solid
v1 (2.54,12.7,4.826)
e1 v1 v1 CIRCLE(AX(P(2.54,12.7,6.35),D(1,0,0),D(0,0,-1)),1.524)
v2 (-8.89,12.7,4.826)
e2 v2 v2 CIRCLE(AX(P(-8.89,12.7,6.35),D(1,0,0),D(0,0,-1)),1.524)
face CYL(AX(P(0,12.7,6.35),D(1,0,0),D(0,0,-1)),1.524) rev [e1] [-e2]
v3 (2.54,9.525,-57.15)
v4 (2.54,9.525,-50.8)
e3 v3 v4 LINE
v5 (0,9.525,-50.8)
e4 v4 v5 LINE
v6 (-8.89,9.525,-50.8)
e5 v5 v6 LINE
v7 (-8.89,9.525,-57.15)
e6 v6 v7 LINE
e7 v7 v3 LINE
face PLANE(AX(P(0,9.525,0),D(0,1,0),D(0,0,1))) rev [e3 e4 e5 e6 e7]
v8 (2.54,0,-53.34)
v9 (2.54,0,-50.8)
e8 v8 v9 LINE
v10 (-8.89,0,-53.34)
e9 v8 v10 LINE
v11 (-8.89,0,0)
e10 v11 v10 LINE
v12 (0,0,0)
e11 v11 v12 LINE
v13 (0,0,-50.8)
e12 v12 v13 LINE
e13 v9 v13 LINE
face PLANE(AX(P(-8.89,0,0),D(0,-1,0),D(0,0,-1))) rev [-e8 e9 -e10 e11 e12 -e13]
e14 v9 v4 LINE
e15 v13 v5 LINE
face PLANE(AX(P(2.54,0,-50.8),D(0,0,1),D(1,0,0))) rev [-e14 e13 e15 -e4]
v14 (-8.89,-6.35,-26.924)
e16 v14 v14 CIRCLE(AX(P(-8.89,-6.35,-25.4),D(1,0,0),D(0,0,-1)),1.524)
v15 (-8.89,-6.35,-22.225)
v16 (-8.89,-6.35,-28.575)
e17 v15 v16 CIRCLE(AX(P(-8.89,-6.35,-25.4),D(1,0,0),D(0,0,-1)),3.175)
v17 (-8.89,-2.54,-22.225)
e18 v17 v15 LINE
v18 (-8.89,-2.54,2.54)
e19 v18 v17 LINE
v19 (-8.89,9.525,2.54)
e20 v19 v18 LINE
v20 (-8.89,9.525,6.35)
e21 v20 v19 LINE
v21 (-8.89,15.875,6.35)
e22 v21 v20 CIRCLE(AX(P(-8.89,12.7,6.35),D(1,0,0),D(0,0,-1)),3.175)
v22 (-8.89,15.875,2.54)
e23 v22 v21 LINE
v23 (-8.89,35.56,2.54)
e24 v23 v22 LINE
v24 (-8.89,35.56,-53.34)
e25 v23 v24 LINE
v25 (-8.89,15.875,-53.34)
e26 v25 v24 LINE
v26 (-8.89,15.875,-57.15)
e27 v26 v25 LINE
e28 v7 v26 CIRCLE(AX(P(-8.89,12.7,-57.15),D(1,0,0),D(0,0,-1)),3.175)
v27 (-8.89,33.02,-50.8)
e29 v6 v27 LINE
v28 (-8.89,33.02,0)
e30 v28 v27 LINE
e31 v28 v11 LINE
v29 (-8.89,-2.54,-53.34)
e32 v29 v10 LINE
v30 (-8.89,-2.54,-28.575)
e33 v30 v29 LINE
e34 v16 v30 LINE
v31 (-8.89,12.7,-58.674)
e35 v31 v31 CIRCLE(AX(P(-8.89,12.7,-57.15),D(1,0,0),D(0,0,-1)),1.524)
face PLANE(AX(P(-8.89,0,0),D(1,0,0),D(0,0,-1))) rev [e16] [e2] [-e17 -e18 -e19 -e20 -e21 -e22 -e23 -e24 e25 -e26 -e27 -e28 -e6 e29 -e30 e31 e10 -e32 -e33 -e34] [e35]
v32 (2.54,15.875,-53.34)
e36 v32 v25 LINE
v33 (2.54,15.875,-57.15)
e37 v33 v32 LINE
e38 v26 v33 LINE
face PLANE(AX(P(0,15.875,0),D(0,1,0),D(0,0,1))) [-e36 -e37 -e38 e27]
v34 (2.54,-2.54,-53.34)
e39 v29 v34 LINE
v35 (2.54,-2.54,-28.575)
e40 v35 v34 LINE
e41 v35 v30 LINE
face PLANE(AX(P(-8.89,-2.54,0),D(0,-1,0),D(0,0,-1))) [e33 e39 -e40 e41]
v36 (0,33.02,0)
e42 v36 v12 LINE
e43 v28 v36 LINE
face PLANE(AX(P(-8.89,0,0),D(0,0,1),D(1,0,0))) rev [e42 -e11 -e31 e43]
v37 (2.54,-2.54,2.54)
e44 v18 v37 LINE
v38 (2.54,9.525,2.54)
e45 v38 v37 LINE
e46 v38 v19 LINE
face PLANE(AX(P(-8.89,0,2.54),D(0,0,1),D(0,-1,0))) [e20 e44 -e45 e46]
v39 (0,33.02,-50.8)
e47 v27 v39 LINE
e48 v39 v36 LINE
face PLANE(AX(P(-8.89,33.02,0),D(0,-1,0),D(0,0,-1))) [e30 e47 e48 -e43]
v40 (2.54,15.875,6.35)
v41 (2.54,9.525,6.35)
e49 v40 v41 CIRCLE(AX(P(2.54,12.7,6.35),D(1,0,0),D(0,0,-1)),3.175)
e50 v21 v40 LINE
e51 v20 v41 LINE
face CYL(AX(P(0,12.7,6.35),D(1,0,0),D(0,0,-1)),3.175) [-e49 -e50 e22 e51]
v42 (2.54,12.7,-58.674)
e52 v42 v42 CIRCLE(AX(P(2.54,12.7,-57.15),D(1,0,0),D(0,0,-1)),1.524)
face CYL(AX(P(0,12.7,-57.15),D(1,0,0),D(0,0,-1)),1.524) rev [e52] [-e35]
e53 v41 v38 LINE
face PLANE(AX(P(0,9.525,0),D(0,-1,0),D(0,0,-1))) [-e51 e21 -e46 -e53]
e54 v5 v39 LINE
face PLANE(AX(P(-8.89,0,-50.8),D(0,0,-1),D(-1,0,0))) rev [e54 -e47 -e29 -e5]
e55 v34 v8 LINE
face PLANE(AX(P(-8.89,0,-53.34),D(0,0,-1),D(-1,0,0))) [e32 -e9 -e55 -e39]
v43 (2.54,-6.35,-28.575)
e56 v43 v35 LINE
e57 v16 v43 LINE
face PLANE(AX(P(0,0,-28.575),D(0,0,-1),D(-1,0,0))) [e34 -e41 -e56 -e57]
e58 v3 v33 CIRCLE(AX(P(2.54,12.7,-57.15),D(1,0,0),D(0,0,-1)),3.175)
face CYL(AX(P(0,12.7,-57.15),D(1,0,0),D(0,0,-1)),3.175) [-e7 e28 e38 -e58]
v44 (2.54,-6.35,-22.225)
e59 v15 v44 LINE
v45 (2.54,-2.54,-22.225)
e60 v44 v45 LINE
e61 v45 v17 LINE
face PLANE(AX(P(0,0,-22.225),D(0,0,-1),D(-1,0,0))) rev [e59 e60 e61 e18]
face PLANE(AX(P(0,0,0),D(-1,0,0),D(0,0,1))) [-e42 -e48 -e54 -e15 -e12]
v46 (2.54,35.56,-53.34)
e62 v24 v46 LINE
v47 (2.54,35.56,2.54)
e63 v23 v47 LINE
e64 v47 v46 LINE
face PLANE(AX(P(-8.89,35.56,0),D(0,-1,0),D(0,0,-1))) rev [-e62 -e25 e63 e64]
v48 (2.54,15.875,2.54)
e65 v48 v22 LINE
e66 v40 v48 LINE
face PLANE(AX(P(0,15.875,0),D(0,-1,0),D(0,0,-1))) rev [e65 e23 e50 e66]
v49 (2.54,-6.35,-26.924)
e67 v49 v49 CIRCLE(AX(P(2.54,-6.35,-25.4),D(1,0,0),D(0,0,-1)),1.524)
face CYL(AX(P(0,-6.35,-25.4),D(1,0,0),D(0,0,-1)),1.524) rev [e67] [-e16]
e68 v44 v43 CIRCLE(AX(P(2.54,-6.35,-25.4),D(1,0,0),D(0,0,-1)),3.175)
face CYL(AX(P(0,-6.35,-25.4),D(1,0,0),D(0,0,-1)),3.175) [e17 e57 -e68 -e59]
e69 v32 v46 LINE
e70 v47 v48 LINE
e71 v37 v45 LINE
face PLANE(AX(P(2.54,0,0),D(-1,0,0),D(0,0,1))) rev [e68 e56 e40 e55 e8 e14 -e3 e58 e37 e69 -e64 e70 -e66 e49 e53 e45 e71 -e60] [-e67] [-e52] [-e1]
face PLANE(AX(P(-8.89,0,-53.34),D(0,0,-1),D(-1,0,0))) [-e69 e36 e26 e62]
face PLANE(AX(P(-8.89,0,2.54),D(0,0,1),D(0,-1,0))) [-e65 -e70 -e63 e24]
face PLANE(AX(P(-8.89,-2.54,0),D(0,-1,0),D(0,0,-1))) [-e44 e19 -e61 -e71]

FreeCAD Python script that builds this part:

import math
import FreeCAD as App
import Part
import Sketcher
Q = App.Units.Quantity


def add_polygon(sketch, points):
    """Adds a closed chain of lines whose ends are joined by coincident constraints."""
    first, n = sketch.GeometryCount, len(points)
    for a, b in zip(points, points[1:] + points[:1]):
        sketch.addGeometry(Part.LineSegment(App.Vector(*a, 0), App.Vector(*b, 0)), False)
    for i in range(n):
        sketch.addConstraint(Sketcher.Constraint("Coincident", first + i, 2, first + (i + 1) % n, 1))

doc = App.newDocument("Part")
body = doc.addObject("PartDesign::Body", "Body")

sketch1 = body.newObject("Sketcher::SketchObject", "Sketch")
sketch1.AttachmentSupport = (doc.getObject("YZ_Plane"), [""])
sketch1.MapMode = "FlatFace"
add_polygon(sketch1, [(33, 0), (0, 0), (0, -51), (33, -51)])
sketch1.addConstraint([
    Sketcher.Constraint("Horizontal", 0),
    Sketcher.Constraint("Vertical", 1),
    Sketcher.Constraint("Horizontal", 2),
    Sketcher.Constraint("Vertical", 3),
    Sketcher.Constraint("Coincident", 0, 2, -1, 1),
    Sketcher.Constraint("DistanceY", 1, 2, 1, 1, Q("2 in")),
    Sketcher.Constraint("DistanceX", 0, 2, 0, 1, Q("1.3 in")),
])
pad1 = body.newObject("PartDesign::Pad", "Pad")
pad1.Profile = sketch1
pad1.Length = Q("0.1 in")

sketch2 = body.newObject("Sketcher::SketchObject", "Sketch001")
sketch2.AttachmentSupport = (doc.getObject("YZ_Plane"), [""])
sketch2.MapMode = "FlatFace"
sketch2.AttachmentOffset = App.Placement(App.Vector(0, 0, 0.1 * 25.4), App.Rotation())
sketch2.addGeometry([
    Part.LineSegment(App.Vector(9.5, 6.3, 0), App.Vector(9.5, 0, 0)),
    Part.LineSegment(App.Vector(9.5, 0, 0), App.Vector(15.9, 0, 0)),
    Part.LineSegment(App.Vector(15.9, 0, 0), App.Vector(15.9, 6.3, 0)),
    Part.ArcOfCircle(Part.Circle(App.Vector(12.7, 6.3, 0), App.Vector(0, 0, 1), 3.2), math.radians(0), math.radians(180)),
    Part.Circle(App.Vector(12.7, 6.3, 0), App.Vector(0, 0, 1), 1.5),
    Part.LineSegment(App.Vector(-6.3, -28.6, 0), App.Vector(0, -28.6, 0)),
    Part.LineSegment(App.Vector(0, -28.6, 0), App.Vector(0, -22.2, 0)),
    Part.LineSegment(App.Vector(0, -22.2, 0), App.Vector(-6.3, -22.2, 0)),
    Part.ArcOfCircle(Part.Circle(App.Vector(-6.3, -25.4, 0), App.Vector(0, 0, 1), 3.2), math.radians(90), math.radians(270)),
    Part.Circle(App.Vector(-6.3, -25.4, 0), App.Vector(0, 0, 1), 1.5),
    Part.LineSegment(App.Vector(9.5, -50.8, 0), App.Vector(9.5, -57.1, 0)),
    Part.ArcOfCircle(Part.Circle(App.Vector(12.7, -57.1, 0), App.Vector(0, 0, 1), 3.2), math.radians(180), math.radians(360)),
    Part.LineSegment(App.Vector(15.9, -57.1, 0), App.Vector(15.9, -50.8, 0)),
    Part.LineSegment(App.Vector(15.9, -50.8, 0), App.Vector(9.5, -50.8, 0)),
    Part.Circle(App.Vector(12.7, -57.1, 0), App.Vector(0, 0, 1), 1.5),
], False)
sketch2.addConstraint([
    Sketcher.Constraint("Coincident", 0, 2, 1, 1),
    Sketcher.Constraint("Coincident", 1, 2, 2, 1),
    Sketcher.Constraint("Tangent", 2, 2, 3, 1),
    Sketcher.Constraint("Tangent", 3, 2, 0, 1),
    Sketcher.Constraint("Coincident", 5, 2, 6, 1),
    Sketcher.Constraint("Coincident", 6, 2, 7, 1),
    Sketcher.Constraint("Tangent", 7, 2, 8, 1),
    Sketcher.Constraint("Tangent", 8, 2, 5, 1),
    Sketcher.Constraint("Tangent", 10, 2, 11, 1),
    Sketcher.Constraint("Tangent", 11, 2, 12, 1),
    Sketcher.Constraint("Coincident", 12, 2, 13, 1),
    Sketcher.Constraint("Coincident", 13, 2, 10, 1),
    Sketcher.Constraint("Vertical", 0),
    Sketcher.Constraint("Horizontal", 1),
    Sketcher.Constraint("Vertical", 2),
    Sketcher.Constraint("Horizontal", 5),
    Sketcher.Constraint("Vertical", 6),
    Sketcher.Constraint("Horizontal", 7),
    Sketcher.Constraint("Vertical", 10),
    Sketcher.Constraint("Vertical", 12),
    Sketcher.Constraint("Horizontal", 13),
    Sketcher.Constraint("Coincident", 4, 3, 3, 3),
    Sketcher.Constraint("Coincident", 9, 3, 8, 3),
    Sketcher.Constraint("Coincident", 14, 3, 11, 3),
    Sketcher.Constraint("Equal", 3, 8),
    Sketcher.Constraint("Equal", 4, 9),
    Sketcher.Constraint("Equal", 8, 11),
    Sketcher.Constraint("Equal", 9, 14),
    Sketcher.Constraint("PointOnObject", 0, 2, -1),
    Sketcher.Constraint("PointOnObject", 5, 2, -2),
    Sketcher.Constraint("Vertical", 4, 3, 11, 3),
    Sketcher.Constraint("Equal", 1, 5),
    Sketcher.Constraint("Equal", 13, 0),
    Sketcher.Constraint("Equal", 6, 10),
    Sketcher.Constraint("Diameter", 4, Q("0.12 in")),
    Sketcher.Constraint("DistanceY", 8, 3, -1, 1, Q("1 in")),
    Sketcher.Constraint("DistanceY", 12, 2, -1, 1, Q("2 in")),
    Sketcher.Constraint("Radius", 3, Q("0.125 in")),
    Sketcher.Constraint("DistanceX", -1, 1, 3, 3, Q("0.5 in")),
])
pad2 = body.newObject("PartDesign::Pad", "Pad001")
pad2.Profile = sketch2
pad2.Length = Q("0.1 in")
pad2.Reversed = True

sketch3 = body.newObject("Sketcher::SketchObject", "Sketch002")
sketch3.AttachmentSupport = (doc.getObject("YZ_Plane"), [""])
sketch3.MapMode = "FlatFace"
sketch3.AttachmentOffset = App.Placement(App.Vector(0, 0, 0.1 * 25.4), App.Rotation())
add_polygon(sketch3, [(-3, 3), (-3, -53), (36, -53), (36, 3)])
add_polygon(sketch3, [(0, -51), (0, 0), (33, 0), (33, -51)])
sketch3.addConstraint([
    Sketcher.Constraint("Vertical", 0),
    Sketcher.Constraint("Horizontal", 1),
    Sketcher.Constraint("Vertical", 2),
    Sketcher.Constraint("Horizontal", 3),
    Sketcher.Constraint("Vertical", 4),
    Sketcher.Constraint("Horizontal", 5),
    Sketcher.Constraint("Vertical", 6),
    Sketcher.Constraint("Horizontal", 7),
    Sketcher.Constraint("Coincident", 4, 2, -1, 1),
    Sketcher.Constraint("DistanceY", 4, 1, 4, 2, Q("2 in")),
    Sketcher.Constraint("DistanceX", 1, 1, 1, 2, Q("1.5 in")),
    Sketcher.Constraint("DistanceX", 5, 1, 5, 2, Q("1.3 in")),
    Sketcher.Constraint("DistanceY", 0, 2, 0, 1, Q("2.2 in")),
    Sketcher.Constraint("DistanceX", 0, 2, -1, 1, Q("0.1 in")),
    Sketcher.Constraint("DistanceY", 0, 2, -1, 1, Q("2.1 in")),
])
pad3 = body.newObject("PartDesign::Pad", "Pad002")
pad3.Profile = sketch3
pad3.Length = Q("0.45 in")
pad3.Reversed = True

sketch4 = body.newObject("Sketcher::SketchObject", "Sketch003")
sketch4.AttachmentSupport = (doc.getObject("YZ_Plane"), [""])
sketch4.MapMode = "FlatFace"
sketch4.AttachmentOffset = App.Placement(App.Vector(0, 0, -0.35 * 25.4), App.Rotation())
add_polygon(sketch4, [(9.5, -53.3), (0, -53.3), (0, -50.8), (9.5, -50.8)])
sketch4.addConstraint([
    Sketcher.Constraint("Horizontal", 0),
    Sketcher.Constraint("Vertical", 1),
    Sketcher.Constraint("Horizontal", 2),
    Sketcher.Constraint("Vertical", 3),
    Sketcher.Constraint("PointOnObject", 0, 2, -2),
    Sketcher.Constraint("DistanceY", 1, 1, 1, 2, Q("0.1 in")),
    Sketcher.Constraint("DistanceY", 1, 2, -1, 1, Q("2 in")),
    Sketcher.Constraint("DistanceX", 0, 2, 0, 1, Q("0.375 in")),
])
pocket1 = body.newObject("PartDesign::Pocket", "Pocket")
pocket1.Profile = sketch4
pocket1.Length = Q("0.45 in")
pocket1.Reversed = True

sketch5 = body.newObject("Sketcher::SketchObject", "Sketch004")
sketch5.AttachmentSupport = (doc.getObject("YZ_Plane"), [""])
sketch5.MapMode = "FlatFace"
sketch5.addGeometry([
    Part.LineSegment(App.Vector(15.9, 2.5, 0), App.Vector(9.5, 2.5, 0)),
    Part.LineSegment(App.Vector(9.5, 2.5, 0), App.Vector(9.5, 6.3, 0)),
    Part.ArcOfCircle(Part.Circle(App.Vector(12.7, 6.3, 0), App.Vector(0, 0, 1), 3.2), math.radians(0), math.radians(180)),
    Part.LineSegment(App.Vector(15.9, 6.3, 0), App.Vector(15.9, 2.5, 0)),
    Part.Circle(App.Vector(12.7, 6.3, 0), App.Vector(0, 0, 1), 1.5),
    Part.LineSegment(App.Vector(-2.5, -22.2, 0), App.Vector(-2.5, -28.6, 0)),
    Part.LineSegment(App.Vector(-2.5, -28.6, 0), App.Vector(-6.3, -28.6, 0)),
    Part.ArcOfCircle(Part.Circle(App.Vector(-6.3, -25.4, 0), App.Vector(0, 0, 1), 3.2), math.radians(90), math.radians(270)),
    Part.LineSegment(App.Vector(-6.3, -22.2, 0), App.Vector(-2.5, -22.2, 0)),
    Part.Circle(App.Vector(-6.3, -25.4, 0), App.Vector(0, 0, 1), 1.5),
    Part.LineSegment(App.Vector(9.5, -53.3, 0), App.Vector(15.9, -53.3, 0)),
    Part.LineSegment(App.Vector(15.9, -53.3, 0), App.Vector(15.9, -57.1, 0)),
    Part.ArcOfCircle(Part.Circle(App.Vector(12.7, -57.1, 0), App.Vector(0, 0, 1), 3.2), math.radians(180), math.radians(360)),
    Part.LineSegment(App.Vector(9.5, -57.1, 0), App.Vector(9.5, -53.3, 0)),
    Part.Circle(App.Vector(12.7, -57.1, 0), App.Vector(0, 0, 1), 1.5),
], False)
sketch5.addConstraint([
    Sketcher.Constraint("Coincident", 0, 2, 1, 1),
    Sketcher.Constraint("Tangent", 1, 2, 2, 2),
    Sketcher.Constraint("Tangent", 2, 1, 3, 1),
    Sketcher.Constraint("Coincident", 3, 2, 0, 1),
    Sketcher.Constraint("Coincident", 5, 2, 6, 1),
    Sketcher.Constraint("Tangent", 6, 2, 7, 2),
    Sketcher.Constraint("Tangent", 7, 1, 8, 1),
    Sketcher.Constraint("Coincident", 8, 2, 5, 1),
    Sketcher.Constraint("Coincident", 10, 2, 11, 1),
    Sketcher.Constraint("Tangent", 11, 2, 12, 2),
    Sketcher.Constraint("Tangent", 12, 1, 13, 1),
    Sketcher.Constraint("Coincident", 13, 2, 10, 1),
    Sketcher.Constraint("Horizontal", 0),
    Sketcher.Constraint("Vertical", 1),
    Sketcher.Constraint("Vertical", 3),
    Sketcher.Constraint("Vertical", 5),
    Sketcher.Constraint("Horizontal", 6),
    Sketcher.Constraint("Horizontal", 8),
    Sketcher.Constraint("Horizontal", 10),
    Sketcher.Constraint("Vertical", 11),
    Sketcher.Constraint("Vertical", 13),
    Sketcher.Constraint("Coincident", 4, 3, 2, 3),
    Sketcher.Constraint("Coincident", 9, 3, 7, 3),
    Sketcher.Constraint("Coincident", 14, 3, 12, 3),
    Sketcher.Constraint("Equal", 2, 7),
    Sketcher.Constraint("Equal", 4, 9),
    Sketcher.Constraint("Equal", 7, 12),
    Sketcher.Constraint("Equal", 9, 14),
    Sketcher.Constraint("Vertical", 4, 3, 12, 3),
    Sketcher.Constraint("Equal", 8, 1),
    Sketcher.Constraint("Equal", 3, 11),
    Sketcher.Constraint("Diameter", 4, Q("0.12 in")),
    Sketcher.Constraint("DistanceY", 7, 3, -1, 1, Q("1 in")),
    Sketcher.Constraint("Radius", 2, Q("0.125 in")),
    Sketcher.Constraint("DistanceX", 6, 2, 6, 1, Q("0.15 in")),
    Sketcher.Constraint("DistanceX", -1, 1, 2, 3, Q("0.5 in")),
    Sketcher.Constraint("DistanceY", -1, 1, 0, 2, Q("0.1 in")),
    Sketcher.Constraint("DistanceX", 5, 2, -1, 1, Q("0.1 in")),
    Sketcher.Constraint("DistanceY", 10, 2, -1, 1, Q("2.1 in")),
])
pad4 = body.newObject("PartDesign::Pad", "Pad003")
pad4.Profile = sketch5
pad4.Length = Q("0.35 in")
pad4.Reversed = True

doc.recompute()
